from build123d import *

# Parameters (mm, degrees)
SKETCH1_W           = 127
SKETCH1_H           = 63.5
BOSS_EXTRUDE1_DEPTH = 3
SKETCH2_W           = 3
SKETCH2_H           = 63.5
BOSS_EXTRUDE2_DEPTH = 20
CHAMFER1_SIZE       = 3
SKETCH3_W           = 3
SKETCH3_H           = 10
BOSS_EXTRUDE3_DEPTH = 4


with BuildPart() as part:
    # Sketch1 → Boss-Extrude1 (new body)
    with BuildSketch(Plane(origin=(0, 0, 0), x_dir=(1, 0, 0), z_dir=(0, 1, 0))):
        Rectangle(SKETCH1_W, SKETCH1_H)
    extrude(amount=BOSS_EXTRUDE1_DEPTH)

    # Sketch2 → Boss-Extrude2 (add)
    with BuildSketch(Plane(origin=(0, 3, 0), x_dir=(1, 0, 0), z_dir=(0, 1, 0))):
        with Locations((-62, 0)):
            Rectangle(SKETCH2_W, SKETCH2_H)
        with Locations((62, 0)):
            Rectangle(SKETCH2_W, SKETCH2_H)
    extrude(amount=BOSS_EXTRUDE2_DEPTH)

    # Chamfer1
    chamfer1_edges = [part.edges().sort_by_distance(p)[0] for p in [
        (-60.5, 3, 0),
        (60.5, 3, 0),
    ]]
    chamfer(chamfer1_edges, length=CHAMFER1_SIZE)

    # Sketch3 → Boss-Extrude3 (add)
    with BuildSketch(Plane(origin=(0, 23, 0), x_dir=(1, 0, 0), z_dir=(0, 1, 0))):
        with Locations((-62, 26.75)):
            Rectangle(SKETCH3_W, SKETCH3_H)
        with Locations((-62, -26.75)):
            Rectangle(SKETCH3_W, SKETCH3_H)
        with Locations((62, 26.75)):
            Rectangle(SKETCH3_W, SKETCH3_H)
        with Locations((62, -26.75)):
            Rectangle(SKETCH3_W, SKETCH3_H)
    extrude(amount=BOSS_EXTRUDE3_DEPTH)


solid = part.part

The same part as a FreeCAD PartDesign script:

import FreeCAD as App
import Part
import Sketcher


def edges_at(feature, points):
    """Names of the edges that pass closest to the given points."""
    edges = feature.Shape.Edges
    near = lambda p: min(range(len(edges)), key=lambda i: edges[i].distToShape(Part.Vertex(*p))[0])
    return sorted({f"Edge{near(p) + 1}" for p in points})


def add_polygon(sketch, points):
    """Adds a closed chain of lines whose ends are joined by coincident constraints."""
    first, n = sketch.GeometryCount, len(points)
    for a, b in zip(points, points[1:] + points[:1]):
        sketch.addGeometry(Part.LineSegment(App.Vector(*a, 0), App.Vector(*b, 0)), False)
    for i in range(n):
        sketch.addConstraint(Sketcher.Constraint("Coincident", first + i, 2, first + (i + 1) % n, 1))

doc = App.newDocument("Part")
body = doc.addObject("PartDesign::Body", "Body")

# Sketch on XZ plane
sketch1 = body.newObject("Sketcher::SketchObject", "Sketch")
sketch1.AttachmentSupport = (doc.getObject("XZ_Plane"), [""])
sketch1.MapMode = "FlatFace"
add_polygon(sketch1, [(-63.5, -31.75), (-63.5, 31.75), (63.5, 31.75), (63.5, -31.75)])  # lines 0-3
sketch1.addConstraint([
    Sketcher.Constraint("Vertical", 0),
    Sketcher.Constraint("Horizontal", 1),
    Sketcher.Constraint("Vertical", 2),
    Sketcher.Constraint("Horizontal", 3),
    Sketcher.Constraint("Symmetric", 0, 2, 2, 2, -1, 1),
    Sketcher.Constraint("DistanceX", 1, 1, 1, 2, 127.0),
    Sketcher.Constraint("DistanceY", 0, 1, 0, 2, 63.5),
])
pad1 = body.newObject("PartDesign::Pad", "Pad")
pad1.Profile = sketch1
pad1.Length = 3
pad1.Reversed = True

# Sketch on XZ plane
sketch2 = body.newObject("Sketcher::SketchObject", "Sketch001")
sketch2.AttachmentSupport = (doc.getObject("XZ_Plane"), [""])
sketch2.MapMode = "FlatFace"
sketch2.AttachmentOffset = App.Placement(App.Vector(0, 0, -3), App.Rotation())
add_polygon(sketch2, [(-63.5, -31.75), (-63.5, 31.75), (-60.5, 31.75), (-60.5, -31.75)])  # lines 0-3
add_polygon(sketch2, [(60.5, -31.75), (60.5, 31.75), (63.5, 31.75), (63.5, -31.75)])  # lines 4-7
sketch2.addConstraint([
    Sketcher.Constraint("Vertical", 0),
    Sketcher.Constraint("Horizontal", 1),
    Sketcher.Constraint("Vertical", 2),
    Sketcher.Constraint("Horizontal", 3),
    Sketcher.Constraint("Vertical", 4),
    Sketcher.Constraint("Horizontal", 5),
    Sketcher.Constraint("Vertical", 6),
    Sketcher.Constraint("Horizontal", 7),
    Sketcher.Constraint("Symmetric", 2, 2, 4, 2, -1, 1),
    Sketcher.Constraint("Symmetric", 0, 2, 6, 2, -1, 1),
    Sketcher.Constraint("Horizontal", 1, 2, 4, 2),
    Sketcher.Constraint("DistanceX", 1, 1, 1, 2, 3.0),
    Sketcher.Constraint("DistanceY", 0, 1, 0, 2, 63.5),
    Sketcher.Constraint("DistanceX", 1, 2, 4, 2, 121.0),
])
pad2 = body.newObject("PartDesign::Pad", "Pad001")
pad2.Profile = sketch2
pad2.Length = 20
pad2.Reversed = True
doc.recompute()

chamfer = body.newObject("PartDesign::Chamfer", "Chamfer")
chamfer.Base = (pad2, edges_at(pad2, [(-60.5, 3, 0), (60.5, 3, 0)]))
chamfer.Size = 3

# Sketch on XZ plane
sketch3 = body.newObject("Sketcher::SketchObject", "Sketch002")
sketch3.AttachmentSupport = (doc.getObject("XZ_Plane"), [""])
sketch3.MapMode = "FlatFace"
sketch3.AttachmentOffset = App.Placement(App.Vector(0, 0, -23), App.Rotation())
add_polygon(sketch3, [(-63.5, -31.75), (-63.5, -21.75), (-60.5, -21.75), (-60.5, -31.75)])  # lines 0-3
add_polygon(sketch3, [(-63.5, 21.75), (-63.5, 31.75), (-60.5, 31.75), (-60.5, 21.75)])  # lines 4-7
add_polygon(sketch3, [(60.5, -31.75), (60.5, -21.75), (63.5, -21.75), (63.5, -31.75)])  # lines 8-11
add_polygon(sketch3, [(60.5, 21.75), (60.5, 31.75), (63.5, 31.75), (63.5, 21.75)])  # lines 12-15
sketch3.addConstraint([
    Sketcher.Constraint("Vertical", 0),
    Sketcher.Constraint("Horizontal", 1),
    Sketcher.Constraint("Vertical", 2),
    Sketcher.Constraint("Horizontal", 3),
    Sketcher.Constraint("Vertical", 4),
    Sketcher.Constraint("Horizontal", 5),
    Sketcher.Constraint("Vertical", 6),
    Sketcher.Constraint("Horizontal", 7),
    Sketcher.Constraint("Vertical", 8),
    Sketcher.Constraint("Horizontal", 9),
    Sketcher.Constraint("Vertical", 10),
    Sketcher.Constraint("Horizontal", 11),
    Sketcher.Constraint("Vertical", 12),
    Sketcher.Constraint("Horizontal", 13),
    Sketcher.Constraint("Vertical", 14),
    Sketcher.Constraint("Horizontal", 15),
    Sketcher.Constraint("Symmetric", 6, 2, 8, 2, -1, 1),
    Sketcher.Constraint("Symmetric", 4, 2, 10, 2, -1, 1),
    Sketcher.Constraint("Symmetric", 2, 2, 12, 2, -1, 1),
    Sketcher.Constraint("Symmetric", 0, 2, 14, 2, -1, 1),
    Sketcher.Constraint("Symmetric", 1, 2, 8, 2, -2),
    Sketcher.Constraint("Symmetric", 3, 2, 10, 2, -2),
    Sketcher.Constraint("DistanceX", 1, 1, 1, 2, 3.0),
    Sketcher.Constraint("DistanceY", 0, 1, 0, 2, 10.0),
    Sketcher.Constraint("DistanceX", 1, 2, 8, 2, 121.0),
    Sketcher.Constraint("DistanceY", 0, 2, 4, 2, 53.5),
])
pad3 = body.newObject("PartDesign::Pad", "Pad002")
pad3.Profile = sketch3
pad3.Length = 4
pad3.Reversed = True

doc.recompute()
